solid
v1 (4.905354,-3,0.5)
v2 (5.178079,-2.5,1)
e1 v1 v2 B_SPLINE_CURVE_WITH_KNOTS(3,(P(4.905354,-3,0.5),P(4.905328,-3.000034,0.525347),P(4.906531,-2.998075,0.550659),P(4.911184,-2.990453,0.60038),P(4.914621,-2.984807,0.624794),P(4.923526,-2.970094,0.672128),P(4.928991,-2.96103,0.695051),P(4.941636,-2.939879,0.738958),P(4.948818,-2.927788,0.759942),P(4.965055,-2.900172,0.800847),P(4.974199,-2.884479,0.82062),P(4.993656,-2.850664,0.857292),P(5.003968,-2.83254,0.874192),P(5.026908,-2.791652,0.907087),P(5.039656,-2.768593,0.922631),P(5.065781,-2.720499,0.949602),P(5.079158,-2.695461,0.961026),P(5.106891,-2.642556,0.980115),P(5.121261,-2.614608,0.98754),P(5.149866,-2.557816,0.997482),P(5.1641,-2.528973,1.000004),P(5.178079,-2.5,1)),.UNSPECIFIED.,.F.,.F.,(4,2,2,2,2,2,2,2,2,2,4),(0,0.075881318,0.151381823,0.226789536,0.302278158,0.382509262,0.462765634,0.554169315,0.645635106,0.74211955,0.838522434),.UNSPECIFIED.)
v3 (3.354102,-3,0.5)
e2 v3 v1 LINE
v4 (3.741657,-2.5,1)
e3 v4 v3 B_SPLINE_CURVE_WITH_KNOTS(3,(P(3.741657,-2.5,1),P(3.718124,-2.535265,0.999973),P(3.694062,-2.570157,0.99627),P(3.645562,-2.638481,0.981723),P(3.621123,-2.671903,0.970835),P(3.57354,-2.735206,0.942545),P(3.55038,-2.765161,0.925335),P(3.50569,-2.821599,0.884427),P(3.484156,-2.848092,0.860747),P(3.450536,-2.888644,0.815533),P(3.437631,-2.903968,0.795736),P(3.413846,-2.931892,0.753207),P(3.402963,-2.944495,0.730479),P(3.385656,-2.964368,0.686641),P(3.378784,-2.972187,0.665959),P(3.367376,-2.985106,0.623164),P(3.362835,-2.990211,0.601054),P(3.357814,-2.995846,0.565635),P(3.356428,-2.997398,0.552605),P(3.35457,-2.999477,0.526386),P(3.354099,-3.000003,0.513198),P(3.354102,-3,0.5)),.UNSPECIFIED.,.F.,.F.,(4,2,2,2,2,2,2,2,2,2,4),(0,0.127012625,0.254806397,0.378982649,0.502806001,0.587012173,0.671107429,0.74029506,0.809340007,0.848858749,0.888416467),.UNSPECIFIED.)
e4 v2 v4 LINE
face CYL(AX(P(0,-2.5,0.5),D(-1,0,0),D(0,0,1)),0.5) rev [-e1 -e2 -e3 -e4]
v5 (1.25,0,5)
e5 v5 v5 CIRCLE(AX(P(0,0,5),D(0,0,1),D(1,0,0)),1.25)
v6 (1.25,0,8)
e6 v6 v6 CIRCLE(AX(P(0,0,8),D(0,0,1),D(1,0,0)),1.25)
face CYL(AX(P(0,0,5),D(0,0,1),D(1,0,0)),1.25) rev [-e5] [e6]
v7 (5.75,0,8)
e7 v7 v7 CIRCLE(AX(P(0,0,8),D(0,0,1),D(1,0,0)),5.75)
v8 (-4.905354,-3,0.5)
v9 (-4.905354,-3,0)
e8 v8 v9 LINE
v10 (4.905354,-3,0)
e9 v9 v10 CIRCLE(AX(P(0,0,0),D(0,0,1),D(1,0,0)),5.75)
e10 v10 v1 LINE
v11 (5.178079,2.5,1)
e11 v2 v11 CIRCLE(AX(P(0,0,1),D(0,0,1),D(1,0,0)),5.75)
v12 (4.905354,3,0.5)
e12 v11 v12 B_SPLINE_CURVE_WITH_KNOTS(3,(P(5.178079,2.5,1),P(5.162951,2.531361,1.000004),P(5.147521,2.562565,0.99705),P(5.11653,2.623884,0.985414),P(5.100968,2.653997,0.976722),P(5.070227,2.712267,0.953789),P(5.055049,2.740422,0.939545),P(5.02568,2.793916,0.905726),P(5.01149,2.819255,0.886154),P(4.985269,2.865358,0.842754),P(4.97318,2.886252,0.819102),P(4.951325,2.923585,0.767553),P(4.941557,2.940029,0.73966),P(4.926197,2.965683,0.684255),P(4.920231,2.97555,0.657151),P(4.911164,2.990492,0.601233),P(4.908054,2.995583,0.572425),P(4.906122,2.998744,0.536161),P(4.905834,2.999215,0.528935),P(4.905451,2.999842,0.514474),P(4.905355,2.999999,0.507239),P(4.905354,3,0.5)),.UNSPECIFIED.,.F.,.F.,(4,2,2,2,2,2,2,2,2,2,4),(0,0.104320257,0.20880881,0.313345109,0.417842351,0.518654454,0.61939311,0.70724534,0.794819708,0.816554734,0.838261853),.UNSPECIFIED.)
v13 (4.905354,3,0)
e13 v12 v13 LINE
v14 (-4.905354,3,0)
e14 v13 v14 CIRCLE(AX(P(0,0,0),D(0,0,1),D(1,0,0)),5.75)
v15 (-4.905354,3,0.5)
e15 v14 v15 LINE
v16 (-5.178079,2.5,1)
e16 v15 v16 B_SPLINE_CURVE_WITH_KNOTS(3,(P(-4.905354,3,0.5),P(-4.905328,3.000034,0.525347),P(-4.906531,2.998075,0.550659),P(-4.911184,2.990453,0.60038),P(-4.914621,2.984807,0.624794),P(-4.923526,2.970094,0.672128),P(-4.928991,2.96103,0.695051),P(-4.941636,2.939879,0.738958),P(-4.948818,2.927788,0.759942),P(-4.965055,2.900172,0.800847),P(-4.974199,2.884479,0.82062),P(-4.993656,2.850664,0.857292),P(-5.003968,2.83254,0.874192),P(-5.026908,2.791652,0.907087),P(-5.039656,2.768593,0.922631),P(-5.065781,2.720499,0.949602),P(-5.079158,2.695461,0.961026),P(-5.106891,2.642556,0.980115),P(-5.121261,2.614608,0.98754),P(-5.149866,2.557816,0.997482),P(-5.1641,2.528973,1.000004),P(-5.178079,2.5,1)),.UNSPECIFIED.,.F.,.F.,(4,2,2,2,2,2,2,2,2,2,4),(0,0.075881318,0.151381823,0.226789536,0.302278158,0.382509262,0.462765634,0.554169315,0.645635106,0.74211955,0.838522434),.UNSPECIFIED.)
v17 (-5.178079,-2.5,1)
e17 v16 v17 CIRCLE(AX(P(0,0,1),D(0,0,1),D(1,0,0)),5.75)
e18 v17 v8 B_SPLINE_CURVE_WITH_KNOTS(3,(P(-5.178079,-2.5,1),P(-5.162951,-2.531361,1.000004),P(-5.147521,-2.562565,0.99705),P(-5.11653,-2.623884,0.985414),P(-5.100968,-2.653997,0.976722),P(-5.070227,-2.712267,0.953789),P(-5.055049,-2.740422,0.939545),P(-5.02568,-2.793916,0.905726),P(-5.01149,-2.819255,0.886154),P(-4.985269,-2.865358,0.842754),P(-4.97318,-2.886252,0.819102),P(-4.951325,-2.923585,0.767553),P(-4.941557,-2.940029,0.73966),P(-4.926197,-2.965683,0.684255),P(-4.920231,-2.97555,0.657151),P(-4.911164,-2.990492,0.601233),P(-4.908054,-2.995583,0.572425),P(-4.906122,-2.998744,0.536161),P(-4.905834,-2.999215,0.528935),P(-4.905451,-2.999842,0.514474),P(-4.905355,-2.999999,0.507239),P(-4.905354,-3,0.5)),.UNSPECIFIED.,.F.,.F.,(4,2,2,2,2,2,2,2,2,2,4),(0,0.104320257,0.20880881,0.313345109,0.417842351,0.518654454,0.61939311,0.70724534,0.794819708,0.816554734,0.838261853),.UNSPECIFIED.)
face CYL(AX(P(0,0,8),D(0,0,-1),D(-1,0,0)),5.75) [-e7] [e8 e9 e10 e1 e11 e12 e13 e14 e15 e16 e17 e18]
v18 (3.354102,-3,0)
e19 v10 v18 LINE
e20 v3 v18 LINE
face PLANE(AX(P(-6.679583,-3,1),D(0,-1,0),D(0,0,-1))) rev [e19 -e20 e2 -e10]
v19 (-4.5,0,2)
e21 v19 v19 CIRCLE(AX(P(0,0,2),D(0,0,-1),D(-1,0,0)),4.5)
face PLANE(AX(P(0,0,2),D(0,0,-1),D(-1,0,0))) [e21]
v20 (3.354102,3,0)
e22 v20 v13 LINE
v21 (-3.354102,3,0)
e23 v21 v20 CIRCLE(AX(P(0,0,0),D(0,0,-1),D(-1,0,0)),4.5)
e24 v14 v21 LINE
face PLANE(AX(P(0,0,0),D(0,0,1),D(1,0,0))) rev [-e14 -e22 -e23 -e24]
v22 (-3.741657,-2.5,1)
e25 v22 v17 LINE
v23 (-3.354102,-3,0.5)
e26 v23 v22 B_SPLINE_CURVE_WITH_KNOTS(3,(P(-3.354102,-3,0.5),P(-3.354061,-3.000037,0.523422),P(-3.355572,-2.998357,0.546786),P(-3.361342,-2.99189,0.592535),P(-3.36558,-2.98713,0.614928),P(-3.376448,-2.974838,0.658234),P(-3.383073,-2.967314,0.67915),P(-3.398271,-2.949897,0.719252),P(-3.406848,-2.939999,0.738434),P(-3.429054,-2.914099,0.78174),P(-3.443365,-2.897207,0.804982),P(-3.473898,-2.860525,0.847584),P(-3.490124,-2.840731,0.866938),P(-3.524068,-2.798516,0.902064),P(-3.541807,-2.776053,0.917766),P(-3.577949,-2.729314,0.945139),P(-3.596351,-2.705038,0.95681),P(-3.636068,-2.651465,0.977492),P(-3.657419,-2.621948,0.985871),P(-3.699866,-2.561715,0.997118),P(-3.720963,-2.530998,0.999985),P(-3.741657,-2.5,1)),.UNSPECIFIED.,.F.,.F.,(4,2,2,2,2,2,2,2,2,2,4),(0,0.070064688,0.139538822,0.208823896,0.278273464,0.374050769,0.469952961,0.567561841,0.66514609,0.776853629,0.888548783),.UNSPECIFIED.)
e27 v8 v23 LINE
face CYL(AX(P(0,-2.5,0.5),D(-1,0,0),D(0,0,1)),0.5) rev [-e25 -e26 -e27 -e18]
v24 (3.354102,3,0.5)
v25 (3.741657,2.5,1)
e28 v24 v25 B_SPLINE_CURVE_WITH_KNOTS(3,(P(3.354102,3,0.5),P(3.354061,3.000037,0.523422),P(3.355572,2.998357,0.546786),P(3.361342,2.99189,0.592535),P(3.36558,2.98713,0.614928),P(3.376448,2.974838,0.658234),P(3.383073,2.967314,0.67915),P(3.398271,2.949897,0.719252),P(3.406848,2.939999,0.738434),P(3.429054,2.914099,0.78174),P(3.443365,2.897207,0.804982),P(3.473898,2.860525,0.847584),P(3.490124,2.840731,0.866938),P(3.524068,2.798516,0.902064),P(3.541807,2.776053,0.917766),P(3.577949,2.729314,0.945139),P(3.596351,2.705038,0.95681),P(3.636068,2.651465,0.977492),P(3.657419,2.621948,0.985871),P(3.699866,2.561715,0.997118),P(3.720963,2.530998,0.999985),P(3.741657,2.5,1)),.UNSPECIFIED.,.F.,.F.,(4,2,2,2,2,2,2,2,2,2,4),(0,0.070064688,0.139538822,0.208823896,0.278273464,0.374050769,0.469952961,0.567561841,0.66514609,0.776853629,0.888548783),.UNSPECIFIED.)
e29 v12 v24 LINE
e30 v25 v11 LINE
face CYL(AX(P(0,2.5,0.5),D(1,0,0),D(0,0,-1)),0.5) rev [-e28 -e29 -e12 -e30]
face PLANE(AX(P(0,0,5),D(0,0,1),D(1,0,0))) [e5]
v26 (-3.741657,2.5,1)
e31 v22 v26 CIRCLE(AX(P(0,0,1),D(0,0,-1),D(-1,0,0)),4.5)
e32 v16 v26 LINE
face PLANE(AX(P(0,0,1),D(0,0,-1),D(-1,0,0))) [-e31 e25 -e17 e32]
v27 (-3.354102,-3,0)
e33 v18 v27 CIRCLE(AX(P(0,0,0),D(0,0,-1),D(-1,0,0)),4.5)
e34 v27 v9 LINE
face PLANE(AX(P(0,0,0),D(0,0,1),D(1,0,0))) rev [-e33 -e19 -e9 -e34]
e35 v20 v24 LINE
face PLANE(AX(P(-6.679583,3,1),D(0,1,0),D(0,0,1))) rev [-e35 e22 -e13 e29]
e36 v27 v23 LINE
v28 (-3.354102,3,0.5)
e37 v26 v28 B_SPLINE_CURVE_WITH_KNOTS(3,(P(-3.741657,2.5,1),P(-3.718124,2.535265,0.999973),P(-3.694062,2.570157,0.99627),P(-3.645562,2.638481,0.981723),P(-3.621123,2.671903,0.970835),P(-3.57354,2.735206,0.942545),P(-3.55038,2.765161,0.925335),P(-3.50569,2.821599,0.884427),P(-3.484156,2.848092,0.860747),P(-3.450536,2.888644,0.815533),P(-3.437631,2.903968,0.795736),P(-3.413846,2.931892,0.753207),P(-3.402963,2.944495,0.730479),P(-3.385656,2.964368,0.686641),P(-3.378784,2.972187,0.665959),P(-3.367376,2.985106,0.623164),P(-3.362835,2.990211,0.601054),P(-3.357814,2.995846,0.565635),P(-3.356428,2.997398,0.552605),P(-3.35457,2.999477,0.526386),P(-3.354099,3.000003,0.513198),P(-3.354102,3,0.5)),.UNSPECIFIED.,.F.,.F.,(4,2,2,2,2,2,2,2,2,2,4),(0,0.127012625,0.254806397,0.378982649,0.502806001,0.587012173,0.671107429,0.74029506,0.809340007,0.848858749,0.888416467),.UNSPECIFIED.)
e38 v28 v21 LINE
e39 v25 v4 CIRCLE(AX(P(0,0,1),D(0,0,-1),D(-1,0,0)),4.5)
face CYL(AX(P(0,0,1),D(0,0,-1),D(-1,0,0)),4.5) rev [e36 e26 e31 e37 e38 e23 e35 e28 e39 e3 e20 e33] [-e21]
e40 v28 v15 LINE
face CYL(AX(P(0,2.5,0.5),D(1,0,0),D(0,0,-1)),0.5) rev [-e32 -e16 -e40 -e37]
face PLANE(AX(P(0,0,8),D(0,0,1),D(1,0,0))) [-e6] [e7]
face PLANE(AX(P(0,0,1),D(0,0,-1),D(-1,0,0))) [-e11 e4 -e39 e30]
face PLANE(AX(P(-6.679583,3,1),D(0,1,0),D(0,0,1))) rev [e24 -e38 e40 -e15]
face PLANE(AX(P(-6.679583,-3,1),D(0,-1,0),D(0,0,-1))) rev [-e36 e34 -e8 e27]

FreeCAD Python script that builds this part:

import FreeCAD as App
import Part
import Sketcher
from FreeCAD import Vector


def edges_at(feature, points):
    """Names of the edges that pass closest to the given points."""
    edges = feature.Shape.Edges
    near = lambda p: min(range(len(edges)), key=lambda i: edges[i].distToShape(Part.Vertex(*p))[0])
    return sorted({f"Edge{near(p) + 1}" for p in points})


def add_polygon(sketch, points):
    """Adds a closed chain of lines whose ends are joined by coincident constraints."""
    first, n = sketch.GeometryCount, len(points)
    for a, b in zip(points, points[1:] + points[:1]):
        sketch.addGeometry(Part.LineSegment(App.Vector(*a, 0), App.Vector(*b, 0)), False)
    for i in range(n):
        sketch.addConstraint(Sketcher.Constraint("Coincident", first + i, 2, first + (i + 1) % n, 1))

doc = App.newDocument("Part")
params = doc.addObject("Spreadsheet::Sheet", "Params")
for row, (alias, value) in enumerate([
    ("sketch1_diameter", "11.5 mm"),
    ("pad1_length", "8 mm"),
    ("sketch2_diameter", "9 mm"),
    ("pocket1_length", "1 mm"),
    ("sketch3_height", "6 mm"),
    ("pocket2_length", "1 mm"),
    ("fillet_radius", "0.5 mm"),
    ("sketch4_diameter", "2.5 mm"),
    ("pocket3_length", "3 mm"),
    ("sketch5_diameter", "9 mm"),
    ("pocket4_length", "1 mm"),
], start=1):
    params.set(f"A{row}", alias)
    params.set(f"B{row}", "=" + value)
    params.setAlias(f"B{row}", alias)

body = doc.addObject("PartDesign::Body", "Body")

sketch1 = body.newObject("Sketcher::SketchObject", "Sketch")
sketch1.AttachmentSupport = (doc.getObject("XY_Plane"), [""])
sketch1.MapMode = "FlatFace"
sketch1.addGeometry(Part.Circle(Vector(0, 0, 0), Vector(0, 0, 1), 6), False)
sketch1.addConstraint([
    Sketcher.Constraint("Coincident", 0, 3, -1, 1),
    Sketcher.Constraint("Diameter", 0, 11.5),
])
sketch1.setExpression("Constraints[1]", "Params.sketch1_diameter")
pad1 = body.newObject("PartDesign::Pad", "Pad")
pad1.Profile = sketch1
pad1.setExpression("Length", "Params.pad1_length")

sketch2 = body.newObject("Sketcher::SketchObject", "Sketch001")
sketch2.AttachmentSupport = (doc.getObject("XY_Plane"), [""])
sketch2.MapMode = "FlatFace"
sketch2.addGeometry(Part.Circle(Vector(0, 0, 0), Vector(0, 0, 1), 4.5), False)
sketch2.addConstraint([
    Sketcher.Constraint("Coincident", 0, 3, -1, 1),
    Sketcher.Constraint("Diameter", 0, 9.0),
])
sketch2.setExpression("Constraints[1]", "Params.sketch2_diameter")
pocket1 = body.newObject("PartDesign::Pocket", "Pocket")
pocket1.Profile = sketch2
pocket1.setExpression("Length", "Params.pocket1_length")
pocket1.Reversed = True

sketch3 = body.newObject("Sketcher::SketchObject", "Sketch002")
sketch3.AttachmentSupport = (doc.getObject("XY_Plane"), [""])
sketch3.MapMode = "FlatFace"
add_polygon(sketch3, [(-7, -3), (-7, 3), (7, 3), (7, -3)])
sketch3.addConstraint([
    Sketcher.Constraint("Vertical", 0),
    Sketcher.Constraint("Horizontal", 1),
    Sketcher.Constraint("Vertical", 2),
    Sketcher.Constraint("Horizontal", 3),
    Sketcher.Constraint("Symmetric", 0, 2, 2, 2, -1, 1),
    Sketcher.Constraint("DistanceY", 0, 1, 0, 2, 6.0),
    Sketcher.Constraint("DistanceX", 1, 1, 1, 2, 13.359166),
])
sketch3.setExpression("Constraints[9]", "Params.sketch3_height")
pocket2 = body.newObject("PartDesign::Pocket", "Pocket001")
pocket2.Profile = sketch3
pocket2.setExpression("Length", "Params.pocket2_length")
pocket2.Reversed = True
doc.recompute()

fillet = body.newObject("PartDesign::Fillet", "Fillet")
fillet.Base = (pocket2, edges_at(pocket2, [
    (4.13, 3, 1),
    (-4.13, 3, 1),
    (-4.13, -3, 1),
    (4.13, -3, 1),
]))
fillet.setExpression("Radius", "Params.fillet_radius")

sketch4 = body.newObject("Sketcher::SketchObject", "Sketch003")
sketch4.AttachmentSupport = (doc.getObject("XY_Plane"), [""])
sketch4.MapMode = "FlatFace"
sketch4.AttachmentOffset = App.Placement(Vector(0, 0, 8), App.Rotation())
sketch4.addGeometry(Part.Circle(Vector(0, 0, 0), Vector(0, 0, 1), 1.2), False)
sketch4.addConstraint([
    Sketcher.Constraint("Coincident", 0, 3, -1, 1),
    Sketcher.Constraint("Diameter", 0, 2.5),
])
sketch4.setExpression("Constraints[1]", "Params.sketch4_diameter")
pocket3 = body.newObject("PartDesign::Pocket", "Pocket002")
pocket3.Profile = sketch4
pocket3.setExpression("Length", "Params.pocket3_length")

sketch5 = body.newObject("Sketcher::SketchObject", "Sketch004")
sketch5.AttachmentSupport = (doc.getObject("XY_Plane"), [""])
sketch5.MapMode = "FlatFace"
sketch5.AttachmentOffset = App.Placement(Vector(0, 0, 1), App.Rotation())
sketch5.addGeometry(Part.Circle(Vector(0, 0, 0), Vector(0, 0, 1), 4.5), False)
sketch5.addConstraint([
    Sketcher.Constraint("Coincident", 0, 3, -1, 1),
    Sketcher.Constraint("Diameter", 0, 9.0),
])
sketch5.setExpression("Constraints[1]", "Params.sketch5_diameter")
pocket4 = body.newObject("PartDesign::Pocket", "Pocket003")
pocket4.Profile = sketch5
pocket4.setExpression("Length", "Params.pocket4_length")
pocket4.Reversed = True

doc.recompute()
